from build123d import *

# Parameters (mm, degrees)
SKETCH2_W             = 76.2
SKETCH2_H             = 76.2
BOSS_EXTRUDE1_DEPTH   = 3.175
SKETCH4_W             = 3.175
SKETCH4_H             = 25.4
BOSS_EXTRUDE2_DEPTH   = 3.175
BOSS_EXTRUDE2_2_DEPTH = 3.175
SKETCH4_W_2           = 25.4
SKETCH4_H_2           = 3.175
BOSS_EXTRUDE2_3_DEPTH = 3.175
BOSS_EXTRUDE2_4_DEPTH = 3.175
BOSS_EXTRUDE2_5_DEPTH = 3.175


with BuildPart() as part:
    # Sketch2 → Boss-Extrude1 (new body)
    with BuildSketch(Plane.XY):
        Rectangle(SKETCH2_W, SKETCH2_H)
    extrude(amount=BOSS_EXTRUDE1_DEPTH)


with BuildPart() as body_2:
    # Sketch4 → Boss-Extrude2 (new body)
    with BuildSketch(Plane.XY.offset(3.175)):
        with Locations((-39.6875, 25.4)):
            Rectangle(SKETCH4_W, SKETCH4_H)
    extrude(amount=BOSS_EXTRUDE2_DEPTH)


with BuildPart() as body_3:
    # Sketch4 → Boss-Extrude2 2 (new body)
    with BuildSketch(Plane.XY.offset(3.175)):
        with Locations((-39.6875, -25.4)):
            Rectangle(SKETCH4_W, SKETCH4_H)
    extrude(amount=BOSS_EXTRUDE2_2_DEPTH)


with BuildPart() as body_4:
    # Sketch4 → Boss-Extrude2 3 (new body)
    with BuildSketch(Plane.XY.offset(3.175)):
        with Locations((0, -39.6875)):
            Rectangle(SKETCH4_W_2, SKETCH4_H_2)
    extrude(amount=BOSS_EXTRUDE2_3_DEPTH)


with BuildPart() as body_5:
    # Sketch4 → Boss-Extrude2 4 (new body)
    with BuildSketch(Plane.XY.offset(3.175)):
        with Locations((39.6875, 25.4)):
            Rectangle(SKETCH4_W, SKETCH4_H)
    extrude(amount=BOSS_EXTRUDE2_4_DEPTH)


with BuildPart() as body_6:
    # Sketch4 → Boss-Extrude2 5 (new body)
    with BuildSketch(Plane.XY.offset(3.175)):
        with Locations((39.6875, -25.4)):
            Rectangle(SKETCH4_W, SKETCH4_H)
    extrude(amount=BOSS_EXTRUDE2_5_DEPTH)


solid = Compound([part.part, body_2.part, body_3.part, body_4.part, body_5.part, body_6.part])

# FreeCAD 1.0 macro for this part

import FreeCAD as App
import Part
import Sketcher
from FreeCAD import Vector
Q = App.Units.Quantity


def add_polygon(sketch, points):
    """Adds a closed chain of lines whose ends are joined by coincident constraints."""
    first, n = sketch.GeometryCount, len(points)
    for a, b in zip(points, points[1:] + points[:1]):
        sketch.addGeometry(Part.LineSegment(App.Vector(*a, 0), App.Vector(*b, 0)), False)
    for i in range(n):
        sketch.addConstraint(Sketcher.Constraint("Coincident", first + i, 2, first + (i + 1) % n, 1))

doc = App.newDocument("Part")
body = doc.addObject("PartDesign::Body", "Body")

# Sketch on XY plane
sketch1 = doc.addObject("Sketcher::SketchObject", "Sketch")
body.addObject(sketch1)
sketch1.AttachmentSupport = (doc.XY_Plane, [""])
sketch1.MapMode = "FlatFace"
add_polygon(sketch1, [(-38, 38), (-38, -38), (38, -38), (38, 38)])  # lines 0-3
sketch1.addConstraint(Sketcher.Constraint("Vertical", 0))
sketch1.addConstraint(Sketcher.Constraint("Horizontal", 1))
sketch1.addConstraint(Sketcher.Constraint("Vertical", 2))
sketch1.addConstraint(Sketcher.Constraint("Horizontal", 3))
sketch1.addConstraint(Sketcher.Constraint("Symmetric", 0, 2, 2, 2, -1, 1))
sketch1.addConstraint(Sketcher.Constraint("Equal", 3, 0))
sketch1.addConstraint(Sketcher.Constraint("DistanceX", 1, 1, 1, 2, Q("3 in")))
pad1 = doc.addObject("PartDesign::Pad", "Pad")
body.addObject(pad1)
pad1.Profile = sketch1
pad1.Length = Q("0.125 in")
body2 = doc.addObject("PartDesign::Body", "Body001")

# Sketch on XY plane
sketch2 = doc.addObject("Sketcher::SketchObject", "Sketch001")
body2.addObject(sketch2)
sketch2.AttachmentSupport = (doc.getObject("XY_Plane001"), [""])
sketch2.MapMode = "FlatFace"
sketch2.AttachmentOffset = App.Placement(Vector(0, 0, 0.125 * 25.4), App.Rotation())
add_polygon(sketch2, [(-41.3, 38.1), (-41.3, 12.7), (-38.1, 12.7), (-38.1, 38.1)])  # lines 0-3
sketch2.addConstraint(Sketcher.Constraint("Vertical", 0))
sketch2.addConstraint(Sketcher.Constraint("Horizontal", 1))
sketch2.addConstraint(Sketcher.Constraint("Vertical", 2))
sketch2.addConstraint(Sketcher.Constraint("Horizontal", 3))
sketch2.addConstraint(Sketcher.Constraint("DistanceY", 0, 2, 0, 1, Q("1 in")))
sketch2.addConstraint(Sketcher.Constraint("DistanceY", -1, 1, 0, 2, Q("0.5 in")))
sketch2.addConstraint(Sketcher.Constraint("DistanceX", 1, 2, -1, 1, Q("1.5 in")))
sketch2.addConstraint(Sketcher.Constraint("DistanceX", 1, 1, 1, 2, Q("0.125 in")))
pad2 = doc.addObject("PartDesign::Pad", "Pad001")
body2.addObject(pad2)
pad2.Profile = sketch2
pad2.Length = Q("0.125 in")
body3 = doc.addObject("PartDesign::Body", "Body002")

# Sketch on XY plane
sketch3 = doc.addObject("Sketcher::SketchObject", "Sketch002")
body3.addObject(sketch3)
sketch3.AttachmentSupport = (doc.getObject("XY_Plane002"), [""])
sketch3.MapMode = "FlatFace"
sketch3.AttachmentOffset = App.Placement(Vector(0, 0, 0.125 * 25.4), App.Rotation())
add_polygon(sketch3, [(-41.3, -12.7), (-41.3, -38.1), (-38.1, -38.1), (-38.1, -12.7)])  # lines 0-3
sketch3.addConstraint(Sketcher.Constraint("Vertical", 0))
sketch3.addConstraint(Sketcher.Constraint("Horizontal", 1))
sketch3.addConstraint(Sketcher.Constraint("Vertical", 2))
sketch3.addConstraint(Sketcher.Constraint("Horizontal", 3))
sketch3.addConstraint(Sketcher.Constraint("DistanceY", 0, 2, 0, 1, Q("1 in")))
sketch3.addConstraint(Sketcher.Constraint("DistanceY", 0, 2, -1, 1, Q("1.5 in")))
sketch3.addConstraint(Sketcher.Constraint("DistanceX", 1, 2, -1, 1, Q("1.5 in")))
sketch3.addConstraint(Sketcher.Constraint("DistanceX", 1, 1, 1, 2, Q("0.125 in")))
pad3 = doc.addObject("PartDesign::Pad", "Pad002")
body3.addObject(pad3)
pad3.Profile = sketch3
pad3.Length = Q("0.125 in")
body4 = doc.addObject("PartDesign::Body", "Body003")

# Sketch on XY plane
sketch4 = doc.addObject("Sketcher::SketchObject", "Sketch003")
body4.addObject(sketch4)
sketch4.AttachmentSupport = (doc.getObject("XY_Plane003"), [""])
sketch4.MapMode = "FlatFace"
sketch4.AttachmentOffset = App.Placement(Vector(0, 0, 0.125 * 25.4), App.Rotation())
add_polygon(sketch4, [(-12.7, -38.1), (-12.7, -41.3), (12.7, -41.3), (12.7, -38.1)])  # lines 0-3
sketch4.addConstraint(Sketcher.Constraint("Vertical", 0))
sketch4.addConstraint(Sketcher.Constraint("Horizontal", 1))
sketch4.addConstraint(Sketcher.Constraint("Vertical", 2))
sketch4.addConstraint(Sketcher.Constraint("Horizontal", 3))
sketch4.addConstraint(Sketcher.Constraint("DistanceX", 1, 1, 1, 2, Q("1 in")))
sketch4.addConstraint(Sketcher.Constraint("DistanceX", 0, 2, -1, 1, Q("0.5 in")))
sketch4.addConstraint(Sketcher.Constraint("DistanceY", 2, 2, -1, 1, Q("1.5 in")))
sketch4.addConstraint(Sketcher.Constraint("DistanceY", 0, 2, 0, 1, Q("0.125 in")))
pad4 = doc.addObject("PartDesign::Pad", "Pad003")
body4.addObject(pad4)
pad4.Profile = sketch4
pad4.Length = Q("0.125 in")
body5 = doc.addObject("PartDesign::Body", "Body004")

# Sketch on XY plane
sketch5 = doc.addObject("Sketcher::SketchObject", "Sketch004")
body5.addObject(sketch5)
sketch5.AttachmentSupport = (doc.getObject("XY_Plane004"), [""])
sketch5.MapMode = "FlatFace"
sketch5.AttachmentOffset = App.Placement(Vector(0, 0, 0.125 * 25.4), App.Rotation())
add_polygon(sketch5, [(38.1, 38.1), (38.1, 12.7), (41.3, 12.7), (41.3, 38.1)])  # lines 0-3
sketch5.addConstraint(Sketcher.Constraint("Vertical", 0))
sketch5.addConstraint(Sketcher.Constraint("Horizontal", 1))
sketch5.addConstraint(Sketcher.Constraint("Vertical", 2))
sketch5.addConstraint(Sketcher.Constraint("Horizontal", 3))
sketch5.addConstraint(Sketcher.Constraint("DistanceY", 0, 2, 0, 1, Q("1 in")))
sketch5.addConstraint(Sketcher.Constraint("DistanceX", -1, 1, 0, 2, Q("1.5 in")))
sketch5.addConstraint(Sketcher.Constraint("DistanceY", -1, 1, 0, 2, Q("0.5 in")))
sketch5.addConstraint(Sketcher.Constraint("DistanceX", 1, 1, 1, 2, Q("0.125 in")))
pad5 = doc.addObject("PartDesign::Pad", "Pad004")
body5.addObject(pad5)
pad5.Profile = sketch5
pad5.Length = Q("0.125 in")
body6 = doc.addObject("PartDesign::Body", "Body005")

# Sketch on XY plane
sketch6 = doc.addObject("Sketcher::SketchObject", "Sketch005")
body6.addObject(sketch6)
sketch6.AttachmentSupport = (doc.getObject("XY_Plane005"), [""])
sketch6.MapMode = "FlatFace"
sketch6.AttachmentOffset = App.Placement(Vector(0, 0, 0.125 * 25.4), App.Rotation())
add_polygon(sketch6, [(38.1, -12.7), (38.1, -38.1), (41.3, -38.1), (41.3, -12.7)])  # lines 0-3
sketch6.addConstraint(Sketcher.Constraint("Vertical", 0))
sketch6.addConstraint(Sketcher.Constraint("Horizontal", 1))
sketch6.addConstraint(Sketcher.Constraint("Vertical", 2))
sketch6.addConstraint(Sketcher.Constraint("Horizontal", 3))
sketch6.addConstraint(Sketcher.Constraint("DistanceY", 0, 2, 0, 1, Q("1 in")))
sketch6.addConstraint(Sketcher.Constraint("DistanceX", -1, 1, 0, 2, Q("1.5 in")))
sketch6.addConstraint(Sketcher.Constraint("DistanceY", 0, 2, -1, 1, Q("1.5 in")))
sketch6.addConstraint(Sketcher.Constraint("DistanceX", 1, 1, 1, 2, Q("0.125 in")))
pad6 = doc.addObject("PartDesign::Pad", "Pad005")
body6.addObject(pad6)
pad6.Profile = sketch6
pad6.Length = Q("0.125 in")

doc.recompute()
